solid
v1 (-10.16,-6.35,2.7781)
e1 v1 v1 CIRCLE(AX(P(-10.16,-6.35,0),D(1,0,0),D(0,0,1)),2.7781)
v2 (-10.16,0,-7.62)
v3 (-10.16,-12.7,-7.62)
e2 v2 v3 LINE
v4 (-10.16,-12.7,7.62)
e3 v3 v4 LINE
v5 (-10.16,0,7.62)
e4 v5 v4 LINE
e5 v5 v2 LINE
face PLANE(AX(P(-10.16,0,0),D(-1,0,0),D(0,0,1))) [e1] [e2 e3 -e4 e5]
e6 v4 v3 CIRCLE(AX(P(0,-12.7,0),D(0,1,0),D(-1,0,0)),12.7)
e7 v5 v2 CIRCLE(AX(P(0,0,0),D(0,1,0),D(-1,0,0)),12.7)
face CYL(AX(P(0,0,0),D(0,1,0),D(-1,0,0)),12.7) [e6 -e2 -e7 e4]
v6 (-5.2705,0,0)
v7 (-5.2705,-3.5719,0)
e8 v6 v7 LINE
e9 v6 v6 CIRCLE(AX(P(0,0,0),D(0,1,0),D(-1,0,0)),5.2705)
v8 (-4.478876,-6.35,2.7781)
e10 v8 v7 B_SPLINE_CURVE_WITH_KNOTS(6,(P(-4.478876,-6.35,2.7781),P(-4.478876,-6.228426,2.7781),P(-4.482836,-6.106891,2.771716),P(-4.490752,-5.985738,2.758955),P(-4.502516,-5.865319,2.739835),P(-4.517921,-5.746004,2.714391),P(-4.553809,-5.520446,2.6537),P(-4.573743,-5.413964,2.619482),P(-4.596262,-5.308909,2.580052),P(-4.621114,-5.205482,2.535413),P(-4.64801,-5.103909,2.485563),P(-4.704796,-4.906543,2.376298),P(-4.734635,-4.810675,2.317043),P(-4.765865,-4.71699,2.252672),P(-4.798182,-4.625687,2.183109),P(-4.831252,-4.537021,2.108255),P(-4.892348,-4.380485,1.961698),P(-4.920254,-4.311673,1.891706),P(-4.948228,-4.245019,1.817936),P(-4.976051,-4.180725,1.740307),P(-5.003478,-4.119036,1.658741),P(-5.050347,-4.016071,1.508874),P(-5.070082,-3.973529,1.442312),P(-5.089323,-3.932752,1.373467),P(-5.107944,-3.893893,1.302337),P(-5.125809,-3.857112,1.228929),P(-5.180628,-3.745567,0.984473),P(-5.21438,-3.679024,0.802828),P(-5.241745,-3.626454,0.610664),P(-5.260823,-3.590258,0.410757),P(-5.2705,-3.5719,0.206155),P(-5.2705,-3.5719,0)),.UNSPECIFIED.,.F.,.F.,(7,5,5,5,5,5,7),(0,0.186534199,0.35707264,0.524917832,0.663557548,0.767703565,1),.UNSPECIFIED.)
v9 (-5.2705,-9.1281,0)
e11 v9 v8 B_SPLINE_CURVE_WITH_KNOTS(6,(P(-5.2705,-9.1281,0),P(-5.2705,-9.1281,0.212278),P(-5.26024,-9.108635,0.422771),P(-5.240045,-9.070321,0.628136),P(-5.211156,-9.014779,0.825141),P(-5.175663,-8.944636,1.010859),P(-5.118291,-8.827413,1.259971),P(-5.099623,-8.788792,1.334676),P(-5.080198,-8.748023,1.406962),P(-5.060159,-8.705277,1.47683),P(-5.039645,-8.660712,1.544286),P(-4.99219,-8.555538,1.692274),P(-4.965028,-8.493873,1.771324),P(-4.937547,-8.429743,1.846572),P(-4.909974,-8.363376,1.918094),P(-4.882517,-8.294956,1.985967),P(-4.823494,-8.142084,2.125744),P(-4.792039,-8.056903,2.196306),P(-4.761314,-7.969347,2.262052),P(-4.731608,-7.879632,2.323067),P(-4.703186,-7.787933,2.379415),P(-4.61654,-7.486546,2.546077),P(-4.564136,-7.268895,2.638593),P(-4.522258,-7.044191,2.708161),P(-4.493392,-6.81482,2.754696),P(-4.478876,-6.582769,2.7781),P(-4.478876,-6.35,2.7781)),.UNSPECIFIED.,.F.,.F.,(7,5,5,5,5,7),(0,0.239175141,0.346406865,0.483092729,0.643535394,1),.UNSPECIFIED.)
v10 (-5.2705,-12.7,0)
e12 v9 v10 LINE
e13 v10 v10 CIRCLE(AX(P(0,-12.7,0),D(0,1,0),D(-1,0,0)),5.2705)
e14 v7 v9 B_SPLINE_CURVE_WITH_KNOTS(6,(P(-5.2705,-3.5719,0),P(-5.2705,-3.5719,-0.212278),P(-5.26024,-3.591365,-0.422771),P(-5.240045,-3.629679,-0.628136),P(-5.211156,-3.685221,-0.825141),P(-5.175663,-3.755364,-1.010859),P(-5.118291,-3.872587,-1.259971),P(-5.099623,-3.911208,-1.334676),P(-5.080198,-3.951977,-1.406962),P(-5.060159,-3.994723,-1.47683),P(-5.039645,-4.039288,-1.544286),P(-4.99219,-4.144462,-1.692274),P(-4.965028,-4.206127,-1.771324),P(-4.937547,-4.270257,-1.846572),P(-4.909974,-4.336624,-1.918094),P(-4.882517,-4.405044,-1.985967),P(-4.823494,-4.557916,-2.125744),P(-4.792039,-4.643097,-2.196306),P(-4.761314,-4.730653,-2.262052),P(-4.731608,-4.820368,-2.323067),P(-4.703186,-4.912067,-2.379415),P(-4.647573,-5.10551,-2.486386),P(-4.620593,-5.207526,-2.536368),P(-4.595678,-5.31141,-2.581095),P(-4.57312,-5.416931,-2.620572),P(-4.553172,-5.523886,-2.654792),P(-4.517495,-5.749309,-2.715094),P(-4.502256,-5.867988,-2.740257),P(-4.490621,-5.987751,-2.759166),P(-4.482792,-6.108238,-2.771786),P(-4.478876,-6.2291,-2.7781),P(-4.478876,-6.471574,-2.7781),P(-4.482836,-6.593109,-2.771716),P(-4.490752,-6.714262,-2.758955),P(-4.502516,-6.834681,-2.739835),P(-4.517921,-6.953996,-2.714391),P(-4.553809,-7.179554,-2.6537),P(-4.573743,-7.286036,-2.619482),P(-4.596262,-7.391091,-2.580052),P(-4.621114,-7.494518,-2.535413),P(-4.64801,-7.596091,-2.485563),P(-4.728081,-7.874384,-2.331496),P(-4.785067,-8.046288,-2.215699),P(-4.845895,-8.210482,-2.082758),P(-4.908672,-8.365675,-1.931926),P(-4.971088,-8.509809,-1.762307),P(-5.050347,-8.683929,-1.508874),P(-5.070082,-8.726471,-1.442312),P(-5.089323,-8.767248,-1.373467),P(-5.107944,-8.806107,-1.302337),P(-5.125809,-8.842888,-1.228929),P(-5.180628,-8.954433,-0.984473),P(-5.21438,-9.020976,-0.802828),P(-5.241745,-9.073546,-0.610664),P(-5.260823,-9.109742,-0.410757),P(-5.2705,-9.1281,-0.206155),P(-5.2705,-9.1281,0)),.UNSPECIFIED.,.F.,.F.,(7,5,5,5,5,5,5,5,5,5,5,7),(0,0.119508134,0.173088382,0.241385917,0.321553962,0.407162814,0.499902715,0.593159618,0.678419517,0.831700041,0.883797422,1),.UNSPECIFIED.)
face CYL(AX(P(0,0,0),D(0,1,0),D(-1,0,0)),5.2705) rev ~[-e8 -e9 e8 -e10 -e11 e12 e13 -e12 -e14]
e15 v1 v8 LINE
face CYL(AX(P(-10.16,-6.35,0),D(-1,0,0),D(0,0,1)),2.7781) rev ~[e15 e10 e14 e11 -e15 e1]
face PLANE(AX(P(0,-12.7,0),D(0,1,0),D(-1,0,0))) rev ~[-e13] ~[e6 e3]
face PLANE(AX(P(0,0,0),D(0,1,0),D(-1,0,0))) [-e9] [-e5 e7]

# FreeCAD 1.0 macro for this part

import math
import FreeCAD as App
import Part
import Sketcher

V = App.Vector
Q = App.Units.Quantity

doc = App.newDocument("Part")
params = doc.addObject("Spreadsheet::Sheet", "Params")
for row, (alias, value) in enumerate([
    ("sketch1_radius", "0.5 in"),
    ("sketch1_diameter", "0.415 in"),
    ("sketch1_height", "0.6 in"),
    ("pad1_length", "0.5 in"),
    ("sketch2_diameter", "0.218748 in"),
    ("pocket1_length", "0.5 in"),
], start=1):
    params.set(f"A{row}", alias)
    params.set(f"B{row}", "=" + value)
    params.setAlias(f"B{row}", alias)

body = doc.addObject("PartDesign::Body", "Body")

# Sketch on XZ plane
sketch1 = body.newObject("Sketcher::SketchObject", "Sketch")
sketch1.AttachmentSupport = (doc.getObject("XZ_Plane"), [""])
sketch1.MapMode = "FlatFace"
sketch1.addGeometry([
    Part.LineSegment(V(-10.16, -7.62, 0), V(-10.16, 7.62, 0)),
    Part.ArcOfCircle(Part.Circle(V(0, 0, 0), V(0, 0, 1), 12.7), math.radians(-143.130102), math.radians(143.130102)),
    Part.Circle(V(0, 0, 0), V(0, 0, 1), 5.2705),
], False)
sketch1.addConstraint([
    Sketcher.Constraint("Coincident", 0, 1, 1, 1),
    Sketcher.Constraint("Coincident", 1, 2, 0, 2),
    Sketcher.Constraint("Vertical", 0),
    Sketcher.Constraint("Coincident", 1, 3, -1, 1),
    Sketcher.Constraint("Coincident", 2, 3, -1, 1),
    Sketcher.Constraint("Radius", 1, Q("0.5 in")),
    Sketcher.Constraint("Diameter", 2, Q("0.415 in")),
    Sketcher.Constraint("DistanceY", 0, 1, 0, 2, Q("0.6 in")),
])
sketch1.setExpression("Constraints[5]", "Params.sketch1_radius")
sketch1.setExpression("Constraints[6]", "Params.sketch1_diameter")
sketch1.setExpression("Constraints[7]", "Params.sketch1_height")
pad1 = body.newObject("PartDesign::Pad", "Pad")
pad1.Profile = sketch1
pad1.setExpression("Length", "Params.pad1_length")

# Sketch on YZ plane
sketch2 = body.newObject("Sketcher::SketchObject", "Sketch001")
sketch2.AttachmentSupport = (doc.getObject("YZ_Plane"), [""])
sketch2.MapMode = "FlatFace"
sketch2.AttachmentOffset = App.Placement(V(0, 0, -0.4 * 25.4), App.Rotation())
sketch2.addGeometry(Part.Circle(V(-6.35, 0, 0), V(0, 0, 1), 2.7781), False)
sketch2.addConstraint([
    Sketcher.Constraint("PointOnObject", 0, 3, -1),
    Sketcher.Constraint("Diameter", 0, Q("0.218748 in")),
    Sketcher.Constraint("DistanceX", 0, 3, -1, 1, Q("0.25 in")),
])
sketch2.setExpression("Constraints[1]", "Params.sketch2_diameter")
pocket1 = body.newObject("PartDesign::Pocket", "Pocket")
pocket1.Profile = sketch2
pocket1.setExpression("Length", "Params.pocket1_length")
pocket1.Reversed = True

doc.recompute()
